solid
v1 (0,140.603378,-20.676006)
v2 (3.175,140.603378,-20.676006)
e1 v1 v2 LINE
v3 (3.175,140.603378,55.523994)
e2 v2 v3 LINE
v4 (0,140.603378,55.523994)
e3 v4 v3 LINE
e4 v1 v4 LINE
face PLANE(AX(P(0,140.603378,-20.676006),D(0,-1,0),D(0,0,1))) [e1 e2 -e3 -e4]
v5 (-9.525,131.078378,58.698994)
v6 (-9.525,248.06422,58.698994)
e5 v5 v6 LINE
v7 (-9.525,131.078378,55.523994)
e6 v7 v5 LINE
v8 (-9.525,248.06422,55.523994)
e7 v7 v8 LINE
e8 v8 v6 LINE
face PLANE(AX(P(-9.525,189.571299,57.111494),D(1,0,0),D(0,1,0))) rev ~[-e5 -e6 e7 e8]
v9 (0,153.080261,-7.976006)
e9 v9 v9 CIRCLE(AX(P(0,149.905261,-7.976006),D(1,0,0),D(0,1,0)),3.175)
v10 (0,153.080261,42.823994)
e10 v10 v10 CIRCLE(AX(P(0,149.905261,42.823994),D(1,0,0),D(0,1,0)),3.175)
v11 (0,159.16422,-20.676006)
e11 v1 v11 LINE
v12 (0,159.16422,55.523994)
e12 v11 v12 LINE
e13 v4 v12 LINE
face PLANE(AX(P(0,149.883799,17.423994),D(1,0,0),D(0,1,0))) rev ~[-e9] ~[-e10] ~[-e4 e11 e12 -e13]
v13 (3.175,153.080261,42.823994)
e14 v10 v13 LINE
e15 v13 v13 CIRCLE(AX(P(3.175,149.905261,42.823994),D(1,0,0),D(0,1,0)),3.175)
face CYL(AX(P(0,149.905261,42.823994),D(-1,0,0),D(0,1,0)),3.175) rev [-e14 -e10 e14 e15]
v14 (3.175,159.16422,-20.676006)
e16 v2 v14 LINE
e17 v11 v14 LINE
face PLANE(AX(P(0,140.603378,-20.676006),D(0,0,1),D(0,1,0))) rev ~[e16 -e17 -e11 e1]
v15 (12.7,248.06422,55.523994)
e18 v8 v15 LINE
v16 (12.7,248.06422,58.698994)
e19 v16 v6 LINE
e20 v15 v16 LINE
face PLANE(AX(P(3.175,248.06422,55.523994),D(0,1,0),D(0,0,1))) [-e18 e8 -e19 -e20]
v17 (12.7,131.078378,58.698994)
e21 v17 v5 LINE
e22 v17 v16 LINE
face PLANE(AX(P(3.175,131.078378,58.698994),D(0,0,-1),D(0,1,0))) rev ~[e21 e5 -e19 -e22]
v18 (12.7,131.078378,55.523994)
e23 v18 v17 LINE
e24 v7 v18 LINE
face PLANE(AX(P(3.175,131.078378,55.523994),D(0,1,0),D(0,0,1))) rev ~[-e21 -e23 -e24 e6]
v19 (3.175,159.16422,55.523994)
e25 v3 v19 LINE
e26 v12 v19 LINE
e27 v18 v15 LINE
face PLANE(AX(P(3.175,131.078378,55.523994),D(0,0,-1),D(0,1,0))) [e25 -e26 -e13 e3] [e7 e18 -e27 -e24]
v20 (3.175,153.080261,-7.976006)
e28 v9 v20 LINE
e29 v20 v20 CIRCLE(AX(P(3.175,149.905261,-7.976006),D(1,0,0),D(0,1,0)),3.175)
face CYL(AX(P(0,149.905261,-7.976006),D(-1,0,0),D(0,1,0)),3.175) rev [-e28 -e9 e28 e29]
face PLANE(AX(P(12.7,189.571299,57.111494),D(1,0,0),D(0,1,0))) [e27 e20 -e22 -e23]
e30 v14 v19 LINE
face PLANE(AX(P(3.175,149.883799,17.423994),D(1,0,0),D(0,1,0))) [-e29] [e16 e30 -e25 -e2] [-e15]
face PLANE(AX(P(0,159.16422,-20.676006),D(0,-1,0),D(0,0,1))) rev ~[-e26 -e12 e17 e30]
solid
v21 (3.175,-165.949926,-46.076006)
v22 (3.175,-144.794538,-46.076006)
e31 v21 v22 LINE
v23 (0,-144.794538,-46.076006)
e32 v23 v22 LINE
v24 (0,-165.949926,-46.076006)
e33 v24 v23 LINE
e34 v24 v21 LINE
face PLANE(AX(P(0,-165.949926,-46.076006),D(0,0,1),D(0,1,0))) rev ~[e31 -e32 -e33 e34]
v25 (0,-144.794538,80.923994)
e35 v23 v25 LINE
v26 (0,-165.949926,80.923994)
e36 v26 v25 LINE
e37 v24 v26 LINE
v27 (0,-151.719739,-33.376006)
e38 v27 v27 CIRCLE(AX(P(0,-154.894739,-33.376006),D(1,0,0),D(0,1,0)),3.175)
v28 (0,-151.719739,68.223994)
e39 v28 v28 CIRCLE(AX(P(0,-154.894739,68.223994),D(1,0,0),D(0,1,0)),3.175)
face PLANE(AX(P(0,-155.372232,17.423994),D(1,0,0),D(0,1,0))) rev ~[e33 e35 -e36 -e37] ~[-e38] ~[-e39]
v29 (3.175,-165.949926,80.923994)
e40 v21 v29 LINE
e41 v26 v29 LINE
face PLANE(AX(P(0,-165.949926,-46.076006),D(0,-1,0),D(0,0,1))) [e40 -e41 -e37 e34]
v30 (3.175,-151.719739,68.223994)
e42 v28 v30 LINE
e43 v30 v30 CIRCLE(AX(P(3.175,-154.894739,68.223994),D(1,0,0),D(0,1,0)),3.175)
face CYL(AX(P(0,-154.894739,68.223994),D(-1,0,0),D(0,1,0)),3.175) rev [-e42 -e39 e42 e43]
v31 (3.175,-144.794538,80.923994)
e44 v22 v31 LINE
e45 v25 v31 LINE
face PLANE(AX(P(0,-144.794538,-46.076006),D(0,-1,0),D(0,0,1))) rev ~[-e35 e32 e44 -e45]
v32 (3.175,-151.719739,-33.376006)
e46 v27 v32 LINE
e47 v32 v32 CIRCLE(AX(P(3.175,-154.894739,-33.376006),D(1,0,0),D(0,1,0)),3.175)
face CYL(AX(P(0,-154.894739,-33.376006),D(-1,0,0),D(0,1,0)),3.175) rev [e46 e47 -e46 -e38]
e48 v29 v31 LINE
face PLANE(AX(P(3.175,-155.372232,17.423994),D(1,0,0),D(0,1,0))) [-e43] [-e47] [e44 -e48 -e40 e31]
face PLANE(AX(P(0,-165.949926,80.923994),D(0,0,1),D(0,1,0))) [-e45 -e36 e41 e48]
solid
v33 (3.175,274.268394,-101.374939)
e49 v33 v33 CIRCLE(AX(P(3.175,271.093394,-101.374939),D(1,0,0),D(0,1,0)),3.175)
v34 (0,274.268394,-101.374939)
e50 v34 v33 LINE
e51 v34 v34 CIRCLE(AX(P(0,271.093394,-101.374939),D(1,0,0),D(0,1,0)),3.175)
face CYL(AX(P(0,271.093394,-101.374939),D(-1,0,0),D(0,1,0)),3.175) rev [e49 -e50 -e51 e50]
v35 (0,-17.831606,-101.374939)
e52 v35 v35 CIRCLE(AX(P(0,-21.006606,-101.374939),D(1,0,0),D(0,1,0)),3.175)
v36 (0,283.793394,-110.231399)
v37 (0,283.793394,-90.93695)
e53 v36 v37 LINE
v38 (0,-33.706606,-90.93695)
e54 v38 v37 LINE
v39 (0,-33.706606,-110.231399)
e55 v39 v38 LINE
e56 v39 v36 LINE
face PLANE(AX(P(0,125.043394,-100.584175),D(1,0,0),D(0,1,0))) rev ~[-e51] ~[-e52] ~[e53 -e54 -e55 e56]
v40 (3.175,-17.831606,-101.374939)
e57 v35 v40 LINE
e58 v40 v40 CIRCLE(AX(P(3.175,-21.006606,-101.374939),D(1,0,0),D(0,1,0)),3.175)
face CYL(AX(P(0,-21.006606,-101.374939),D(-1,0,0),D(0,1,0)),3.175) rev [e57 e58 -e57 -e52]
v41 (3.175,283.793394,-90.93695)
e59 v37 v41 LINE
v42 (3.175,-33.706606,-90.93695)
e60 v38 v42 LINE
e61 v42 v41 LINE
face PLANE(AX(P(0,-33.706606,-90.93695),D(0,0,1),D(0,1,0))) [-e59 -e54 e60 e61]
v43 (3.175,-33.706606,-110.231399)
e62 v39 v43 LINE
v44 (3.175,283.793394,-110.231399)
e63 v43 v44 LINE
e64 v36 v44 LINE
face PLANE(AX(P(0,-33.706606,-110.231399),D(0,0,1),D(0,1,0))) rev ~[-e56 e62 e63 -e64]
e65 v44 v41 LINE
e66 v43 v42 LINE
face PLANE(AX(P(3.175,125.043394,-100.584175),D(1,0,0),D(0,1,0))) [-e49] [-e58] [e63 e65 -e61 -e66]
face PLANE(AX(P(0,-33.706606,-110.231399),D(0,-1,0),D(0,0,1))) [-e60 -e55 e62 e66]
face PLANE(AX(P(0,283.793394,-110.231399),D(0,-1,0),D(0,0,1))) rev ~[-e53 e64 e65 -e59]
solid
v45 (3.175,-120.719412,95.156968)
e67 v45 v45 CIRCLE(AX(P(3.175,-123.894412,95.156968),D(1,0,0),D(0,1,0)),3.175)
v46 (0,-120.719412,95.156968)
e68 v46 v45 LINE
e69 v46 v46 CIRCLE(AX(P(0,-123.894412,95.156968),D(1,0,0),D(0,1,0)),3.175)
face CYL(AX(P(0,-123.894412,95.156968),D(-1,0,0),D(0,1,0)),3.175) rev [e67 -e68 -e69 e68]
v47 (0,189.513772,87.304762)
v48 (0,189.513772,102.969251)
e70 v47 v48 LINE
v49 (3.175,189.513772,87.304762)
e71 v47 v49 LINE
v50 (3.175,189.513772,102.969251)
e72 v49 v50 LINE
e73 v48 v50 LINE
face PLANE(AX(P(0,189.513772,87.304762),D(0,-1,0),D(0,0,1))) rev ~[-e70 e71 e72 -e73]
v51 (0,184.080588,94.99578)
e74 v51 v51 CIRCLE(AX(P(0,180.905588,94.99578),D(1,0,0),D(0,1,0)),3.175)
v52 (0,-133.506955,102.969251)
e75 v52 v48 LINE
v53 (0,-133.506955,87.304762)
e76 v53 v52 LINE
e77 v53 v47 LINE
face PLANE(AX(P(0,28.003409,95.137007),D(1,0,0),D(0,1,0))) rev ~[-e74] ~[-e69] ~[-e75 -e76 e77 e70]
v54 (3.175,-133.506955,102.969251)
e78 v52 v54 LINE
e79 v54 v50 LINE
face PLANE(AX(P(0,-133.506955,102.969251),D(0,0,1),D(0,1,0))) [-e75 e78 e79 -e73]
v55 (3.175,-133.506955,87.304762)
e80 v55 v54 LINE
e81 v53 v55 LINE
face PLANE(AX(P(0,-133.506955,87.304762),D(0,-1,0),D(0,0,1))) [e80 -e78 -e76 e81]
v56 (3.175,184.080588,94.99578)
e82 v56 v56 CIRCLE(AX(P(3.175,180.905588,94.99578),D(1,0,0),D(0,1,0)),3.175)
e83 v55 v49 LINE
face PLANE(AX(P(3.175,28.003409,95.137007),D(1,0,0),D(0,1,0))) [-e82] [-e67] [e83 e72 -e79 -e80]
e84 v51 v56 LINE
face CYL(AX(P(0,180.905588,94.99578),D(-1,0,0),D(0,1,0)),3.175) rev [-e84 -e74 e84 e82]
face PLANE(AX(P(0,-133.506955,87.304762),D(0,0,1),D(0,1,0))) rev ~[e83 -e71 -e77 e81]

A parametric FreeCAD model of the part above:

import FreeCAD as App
import Part
import Sketcher

V = App.Vector
Q = App.Units.Quantity

doc = App.newDocument("Part")
body = doc.addObject("PartDesign::Body", "Body")
body.AllowCompound = True

sketch1 = body.newObject("Sketcher::SketchObject", "Sketch")
sketch1.AttachmentSupport = (doc.getObject("YZ_Plane"), [""])
sketch1.MapMode = "FlatFace"
sketch1.addGeometry([
    Part.LineSegment(V(-165.949926, 80.923994, 0), V(-165.949926, -46.076006, 0)),
    Part.LineSegment(V(-165.949926, -46.076006, 0), V(-144.794538, -46.076006, 0)),
    Part.LineSegment(V(-144.794538, -46.076006, 0), V(-144.794538, 80.923994, 0)),
    Part.LineSegment(V(-144.794538, 80.923994, 0), V(-165.949926, 80.923994, 0)),
    Part.Circle(V(-154.894739, -33.376006, 0), V(0, 0, 1), 3.175),
    Part.Circle(V(-154.894739, 68.223994, 0), V(0, 0, 1), 3.175),
    Part.LineSegment(V(140.603378, 55.523994, 0), V(140.603378, -20.676006, 0)),
    Part.LineSegment(V(140.603378, -20.676006, 0), V(159.16422, -20.676006, 0)),
    Part.LineSegment(V(159.16422, -20.676006, 0), V(159.16422, 55.523994, 0)),
    Part.LineSegment(V(159.16422, 55.523994, 0), V(140.603378, 55.523994, 0)),
    Part.Circle(V(149.905261, -7.976006, 0), V(0, 0, 1), 3.175),
    Part.Circle(V(149.905261, 42.823994, 0), V(0, 0, 1), 3.175),
], False)
sketch1.addConstraint([
    Sketcher.Constraint("Coincident", 0, 2, 1, 1),
    Sketcher.Constraint("Coincident", 1, 2, 2, 1),
    Sketcher.Constraint("Coincident", 2, 2, 3, 1),
    Sketcher.Constraint("Coincident", 3, 2, 0, 1),
    Sketcher.Constraint("Coincident", 6, 2, 7, 1),
    Sketcher.Constraint("Coincident", 7, 2, 8, 1),
    Sketcher.Constraint("Coincident", 8, 2, 9, 1),
    Sketcher.Constraint("Coincident", 9, 2, 6, 1),
    Sketcher.Constraint("Vertical", 0),
    Sketcher.Constraint("Horizontal", 1),
    Sketcher.Constraint("Vertical", 2),
    Sketcher.Constraint("Horizontal", 3),
    Sketcher.Constraint("Vertical", 6),
    Sketcher.Constraint("Horizontal", 7),
    Sketcher.Constraint("Vertical", 8),
    Sketcher.Constraint("Horizontal", 9),
    Sketcher.Constraint("Equal", 4, 5),
    Sketcher.Constraint("Equal", 5, 10),
    Sketcher.Constraint("Equal", 10, 11),
    Sketcher.Constraint("Vertical", 4, 3, 5, 3),
    Sketcher.Constraint("Vertical", 10, 3, 11, 3),
    Sketcher.Constraint("Diameter", 4, Q("0.25 in")),
    Sketcher.Constraint("DistanceY", 0, 2, 0, 1, Q("5 in")),
    Sketcher.Constraint("DistanceY", 6, 2, 6, 1, Q("3 in")),
    Sketcher.Constraint("DistanceY", 4, 3, 5, 3, Q("4 in")),
    Sketcher.Constraint("DistanceX", 4, 3, 10, 3, Q("12 in")),
    Sketcher.Constraint("DistanceY", 4, 3, 10, 3, Q("1 in")),
    Sketcher.Constraint("DistanceY", 10, 3, 11, 3, Q("2 in")),
    Sketcher.Constraint("DistanceY", 1, 2, 6, 2, Q("1 in")),
    Sketcher.Constraint("DistanceY", 0, 2, 4, 3, Q("0.5 in")),
    Sketcher.Constraint("DistanceX", 4, 3, 1, 2, Q("10.1002 mm")),
    Sketcher.Constraint("DistanceX", 1, 1, 1, 2, Q("21.155387 mm")),
    Sketcher.Constraint("DistanceX", 7, 1, 7, 2, Q("18.560842 mm")),
    Sketcher.Constraint("DistanceX", 4, 3, -1, 1, Q("154.894739 mm")),
    Sketcher.Constraint("DistanceX", -1, 1, 6, 2, Q("140.603378 mm")),
    Sketcher.Constraint("DistanceY", 4, 3, -1, 1, Q("33.376006 mm")),
])
pad1 = body.newObject("PartDesign::Pad", "Pad")
pad1.Profile = sketch1
pad1.Length = Q("0.125 in")

sketch2 = body.newObject("Sketcher::SketchObject", "Sketch001")
sketch2.AttachmentSupport = (doc.getObject("YZ_Plane"), [""])
sketch2.MapMode = "FlatFace"
sketch2.AttachmentOffset = App.Placement(V(0, 0, 0.125 * 25.4), App.Rotation())
sketch2.addGeometry([
    Part.LineSegment(V(131.078378, 58.698994, 0), V(131.078378, 55.523994, 0)),
    Part.LineSegment(V(131.078378, 55.523994, 0), V(248.06422, 55.523994, 0)),
    Part.LineSegment(V(248.06422, 55.523994, 0), V(248.06422, 58.698994, 0)),
    Part.LineSegment(V(248.06422, 58.698994, 0), V(131.078378, 58.698994, 0)),
], False)
sketch2.addConstraint([
    Sketcher.Constraint("Coincident", 0, 2, 1, 1),
    Sketcher.Constraint("Coincident", 1, 2, 2, 1),
    Sketcher.Constraint("Coincident", 2, 2, 3, 1),
    Sketcher.Constraint("Coincident", 3, 2, 0, 1),
    Sketcher.Constraint("Vertical", 0),
    Sketcher.Constraint("Horizontal", 1),
    Sketcher.Constraint("Vertical", 2),
    Sketcher.Constraint("Horizontal", 3),
    Sketcher.Constraint("DistanceY", 0, 2, 0, 1, Q("0.125 in")),
    Sketcher.Constraint("DistanceX", 1, 1, 1, 2, Q("116.985842 mm")),
    Sketcher.Constraint("DistanceX", -1, 1, 1, 2, Q("248.06422 mm")),
    Sketcher.Constraint("DistanceY", -1, 1, 0, 2, Q("55.523994 mm")),
])
pad2 = body.newObject("PartDesign::Pad", "Pad001")
pad2.Profile = sketch2
pad2.Type = "TwoLengths"
pad2.Length = Q("0.375 in")
pad2.Length2 = Q("0.5 in")
body2 = doc.addObject("PartDesign::Body", "Body001")

sketch3 = body2.newObject("Sketcher::SketchObject", "Sketch002")
sketch3.AttachmentSupport = (doc.getObject("YZ_Plane001"), [""])
sketch3.MapMode = "FlatFace"
sketch3.addGeometry([
    Part.LineSegment(V(-133.506955, 102.969251, 0), V(-133.506955, 87.304762, 0)),
    Part.LineSegment(V(-133.506955, 87.304762, 0), V(189.513772, 87.304762, 0)),
    Part.LineSegment(V(189.513772, 87.304762, 0), V(189.513772, 102.969251, 0)),
    Part.LineSegment(V(189.513772, 102.969251, 0), V(-133.506955, 102.969251, 0)),
    Part.Circle(V(180.905588, 94.99578, 0), V(0, 0, 1), 3.175),
    Part.Circle(V(-123.894412, 95.156968, 0), V(0, 0, 1), 3.175),
], False)
sketch3.addConstraint([
    Sketcher.Constraint("Coincident", 0, 2, 1, 1),
    Sketcher.Constraint("Coincident", 1, 2, 2, 1),
    Sketcher.Constraint("Coincident", 2, 2, 3, 1),
    Sketcher.Constraint("Coincident", 3, 2, 0, 1),
    Sketcher.Constraint("Vertical", 0),
    Sketcher.Constraint("Horizontal", 1),
    Sketcher.Constraint("Vertical", 2),
    Sketcher.Constraint("Horizontal", 3),
    Sketcher.Constraint("Equal", 4, 5),
    Sketcher.Constraint("Diameter", 4, Q("0.25 in")),
    Sketcher.Constraint("DistanceX", 5, 3, 4, 3, Q("12 in")),
    Sketcher.Constraint("DistanceY", 0, 2, 0, 1, Q("15.664489 mm")),
    Sketcher.Constraint("DistanceX", 1, 1, 1, 2, Q("323.020727 mm")),
    Sketcher.Constraint("DistanceX", -1, 1, 4, 3, Q("180.905588 mm")),
    Sketcher.Constraint("DistanceY", -1, 1, 4, 3, Q("94.99578 mm")),
    Sketcher.Constraint("DistanceY", -1, 1, 5, 3, Q("95.156968 mm")),
    Sketcher.Constraint("DistanceY", -1, 1, 2, 2, Q("102.969251 mm")),
    Sketcher.Constraint("DistanceX", 0, 2, -1, 1, Q("133.506955 mm")),
])
pad3 = body2.newObject("PartDesign::Pad", "Pad002")
pad3.Profile = sketch3
pad3.Length = Q("0.125 in")
body3 = doc.addObject("PartDesign::Body", "Body002")

sketch4 = body3.newObject("Sketcher::SketchObject", "Sketch003")
sketch4.AttachmentSupport = (doc.getObject("YZ_Plane002"), [""])
sketch4.MapMode = "FlatFace"
sketch4.addGeometry([
    Part.LineSegment(V(-33.706606, -90.93695, 0), V(-33.706606, -110.231399, 0)),
    Part.LineSegment(V(-33.706606, -110.231399, 0), V(283.793394, -110.231399, 0)),
    Part.LineSegment(V(283.793394, -110.231399, 0), V(283.793394, -90.93695, 0)),
    Part.LineSegment(V(283.793394, -90.93695, 0), V(-33.706606, -90.93695, 0)),
    Part.Circle(V(-21.006606, -101.374939, 0), V(0, 0, 1), 3.175),
    Part.Circle(V(271.093394, -101.374939, 0), V(0, 0, 1), 3.175),
], False)
sketch4.addConstraint([
    Sketcher.Constraint("Coincident", 0, 2, 1, 1),
    Sketcher.Constraint("Coincident", 1, 2, 2, 1),
    Sketcher.Constraint("Coincident", 2, 2, 3, 1),
    Sketcher.Constraint("Coincident", 3, 2, 0, 1),
    Sketcher.Constraint("Vertical", 0),
    Sketcher.Constraint("Horizontal", 1),
    Sketcher.Constraint("Vertical", 2),
    Sketcher.Constraint("Horizontal", 3),
    Sketcher.Constraint("Equal", 4, 5),
    Sketcher.Constraint("Horizontal", 4, 3, 5, 3),
    Sketcher.Constraint("Diameter", 4, Q("0.25 in")),
    Sketcher.Constraint("DistanceX", 1, 1, 1, 2, Q("12.5 in")),
    Sketcher.Constraint("DistanceX", 0, 2, 5, 3, Q("12 in")),
    Sketcher.Constraint("DistanceX", 4, 3, 1, 2, Q("12 in")),
    Sketcher.Constraint("DistanceY", 0, 2, 0, 1, Q("19.294449 mm")),
    Sketcher.Constraint("DistanceY", 0, 2, -1, 1, Q("110.231399 mm")),
    Sketcher.Constraint("DistanceY", 4, 3, -1, 1, Q("101.374939 mm")),
    Sketcher.Constraint("DistanceX", 4, 3, -1, 1, Q("21.006606 mm")),
])
pad4 = body3.newObject("PartDesign::Pad", "Pad003")
pad4.Profile = sketch4
pad4.Length = Q("0.125 in")

doc.recompute()
